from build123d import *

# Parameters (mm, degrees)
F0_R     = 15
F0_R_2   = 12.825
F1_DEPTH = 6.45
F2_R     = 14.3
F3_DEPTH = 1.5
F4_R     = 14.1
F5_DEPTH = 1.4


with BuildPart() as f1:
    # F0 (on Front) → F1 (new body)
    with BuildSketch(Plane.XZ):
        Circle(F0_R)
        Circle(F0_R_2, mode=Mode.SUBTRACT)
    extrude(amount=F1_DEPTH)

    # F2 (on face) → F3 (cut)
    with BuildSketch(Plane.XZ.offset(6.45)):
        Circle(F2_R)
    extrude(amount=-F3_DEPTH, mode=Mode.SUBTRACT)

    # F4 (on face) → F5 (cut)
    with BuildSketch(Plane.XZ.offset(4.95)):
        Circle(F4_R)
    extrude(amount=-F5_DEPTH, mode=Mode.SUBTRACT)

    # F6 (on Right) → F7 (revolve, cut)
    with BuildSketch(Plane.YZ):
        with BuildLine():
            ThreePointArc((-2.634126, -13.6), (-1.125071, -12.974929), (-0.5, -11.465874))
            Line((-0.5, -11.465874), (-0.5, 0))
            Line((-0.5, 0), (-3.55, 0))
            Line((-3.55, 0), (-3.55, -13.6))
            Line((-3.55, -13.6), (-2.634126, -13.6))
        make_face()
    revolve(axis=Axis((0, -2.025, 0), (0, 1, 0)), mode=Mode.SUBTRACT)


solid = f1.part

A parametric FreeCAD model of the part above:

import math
import FreeCAD as App
import Part
import Sketcher

V = App.Vector
Q = App.Units.Quantity

doc = App.newDocument("Part")
body = doc.addObject("PartDesign::Body", "Body")

# Sketch on XZ plane
sketch1 = body.newObject("Sketcher::SketchObject", "Sketch")
sketch1.AttachmentSupport = (doc.getObject("XZ_Plane"), [""])
sketch1.MapMode = "FlatFace"
sketch1.addGeometry([
    Part.Circle(V(0, 0, 0), V(0, 0, 1), 15),
    Part.Circle(V(0, 0, 0), V(0, 0, 1), 13),
], False)
sketch1.addConstraint([
    Sketcher.Constraint("Coincident", 0, 3, -1, 1),
    Sketcher.Constraint("Coincident", 1, 3, -1, 1),
    Sketcher.Constraint("Diameter", 0, Q("30 mm")),
    Sketcher.Constraint("Diameter", 1, Q("25.65 mm")),
])
pad1 = body.newObject("PartDesign::Pad", "Pad")
pad1.Profile = sketch1
pad1.Length = 6.45

# Sketch on XZ plane
sketch2 = body.newObject("Sketcher::SketchObject", "Sketch001")
sketch2.AttachmentSupport = (doc.getObject("XZ_Plane"), [""])
sketch2.MapMode = "FlatFace"
sketch2.AttachmentOffset = App.Placement(V(0, 0, 6.45), App.Rotation())
sketch2.addGeometry(Part.Circle(V(0, 0, 0), V(0, 0, 1), 14), False)
sketch2.addConstraint([
    Sketcher.Constraint("Coincident", 0, 3, -1, 1),
    Sketcher.Constraint("Diameter", 0, Q("28.6 mm")),
])
pocket1 = body.newObject("PartDesign::Pocket", "Pocket")
pocket1.Profile = sketch2
pocket1.Length = 1.5

# Sketch on XZ plane
sketch3 = body.newObject("Sketcher::SketchObject", "Sketch002")
sketch3.AttachmentSupport = (doc.getObject("XZ_Plane"), [""])
sketch3.MapMode = "FlatFace"
sketch3.AttachmentOffset = App.Placement(V(0, 0, 4.95), App.Rotation())
sketch3.addGeometry(Part.Circle(V(0, 0, 0), V(0, 0, 1), 14), False)
sketch3.addConstraint([
    Sketcher.Constraint("Coincident", 0, 3, -1, 1),
    Sketcher.Constraint("Diameter", 0, Q("28.2 mm")),
])
pocket2 = body.newObject("PartDesign::Pocket", "Pocket001")
pocket2.Profile = sketch3
pocket2.Length = 1.4

# Sketch on YZ plane
sketch4 = body.newObject("Sketcher::SketchObject", "Sketch003")
sketch4.AttachmentSupport = (doc.getObject("YZ_Plane"), [""])
sketch4.MapMode = "FlatFace"
sketch4.addGeometry([
    Part.ArcOfCircle(Part.Circle(V(-2.6, -11.5, 0), V(0, 0, 1), 2.1), math.radians(-90), math.radians(0)),  # 0
    Part.LineSegment(V(-0.5, -11.5, 0), V(-0.5, 0, 0)),  # 1
    Part.LineSegment(V(-0.5, 0, 0), V(-3.5, 0, 0)),  # 2
    Part.LineSegment(V(-3.5, 0, 0), V(-3.5, -13.6, 0)),  # 3
    Part.LineSegment(V(-3.5, -13.6, 0), V(-2.6, -13.6, 0)),  # 4
], False)
sketch4.addConstraint([
    Sketcher.Constraint("Tangent", 0, 2, 1, 1),
    Sketcher.Constraint("Coincident", 1, 2, 2, 1),
    Sketcher.Constraint("Coincident", 2, 2, 3, 1),
    Sketcher.Constraint("Coincident", 3, 2, 4, 1),
    Sketcher.Constraint("Tangent", 4, 2, 0, 1),
    Sketcher.Constraint("Vertical", 1),
    Sketcher.Constraint("Horizontal", 2),
    Sketcher.Constraint("Vertical", 3),
    Sketcher.Constraint("Horizontal", 4),
    Sketcher.Constraint("PointOnObject", 1, 2, -1),
    Sketcher.Constraint("DistanceY", 3, 2, 3, 1, Q("13.6 mm")),
    Sketcher.Constraint("DistanceX", 2, 2, 2, 1, Q("3.05 mm")),
    Sketcher.Constraint("DistanceX", 0, 2, -1, 1, Q("0.5 mm")),
    Sketcher.Constraint("Radius", 0, Q("2.134126 mm")),
])
groove = body.newObject("PartDesign::Groove", "Groove")
groove.Profile = sketch4
groove.ReferenceAxis = (sketch4, ["H_Axis"])
groove.Angle = 360

doc.recompute()
